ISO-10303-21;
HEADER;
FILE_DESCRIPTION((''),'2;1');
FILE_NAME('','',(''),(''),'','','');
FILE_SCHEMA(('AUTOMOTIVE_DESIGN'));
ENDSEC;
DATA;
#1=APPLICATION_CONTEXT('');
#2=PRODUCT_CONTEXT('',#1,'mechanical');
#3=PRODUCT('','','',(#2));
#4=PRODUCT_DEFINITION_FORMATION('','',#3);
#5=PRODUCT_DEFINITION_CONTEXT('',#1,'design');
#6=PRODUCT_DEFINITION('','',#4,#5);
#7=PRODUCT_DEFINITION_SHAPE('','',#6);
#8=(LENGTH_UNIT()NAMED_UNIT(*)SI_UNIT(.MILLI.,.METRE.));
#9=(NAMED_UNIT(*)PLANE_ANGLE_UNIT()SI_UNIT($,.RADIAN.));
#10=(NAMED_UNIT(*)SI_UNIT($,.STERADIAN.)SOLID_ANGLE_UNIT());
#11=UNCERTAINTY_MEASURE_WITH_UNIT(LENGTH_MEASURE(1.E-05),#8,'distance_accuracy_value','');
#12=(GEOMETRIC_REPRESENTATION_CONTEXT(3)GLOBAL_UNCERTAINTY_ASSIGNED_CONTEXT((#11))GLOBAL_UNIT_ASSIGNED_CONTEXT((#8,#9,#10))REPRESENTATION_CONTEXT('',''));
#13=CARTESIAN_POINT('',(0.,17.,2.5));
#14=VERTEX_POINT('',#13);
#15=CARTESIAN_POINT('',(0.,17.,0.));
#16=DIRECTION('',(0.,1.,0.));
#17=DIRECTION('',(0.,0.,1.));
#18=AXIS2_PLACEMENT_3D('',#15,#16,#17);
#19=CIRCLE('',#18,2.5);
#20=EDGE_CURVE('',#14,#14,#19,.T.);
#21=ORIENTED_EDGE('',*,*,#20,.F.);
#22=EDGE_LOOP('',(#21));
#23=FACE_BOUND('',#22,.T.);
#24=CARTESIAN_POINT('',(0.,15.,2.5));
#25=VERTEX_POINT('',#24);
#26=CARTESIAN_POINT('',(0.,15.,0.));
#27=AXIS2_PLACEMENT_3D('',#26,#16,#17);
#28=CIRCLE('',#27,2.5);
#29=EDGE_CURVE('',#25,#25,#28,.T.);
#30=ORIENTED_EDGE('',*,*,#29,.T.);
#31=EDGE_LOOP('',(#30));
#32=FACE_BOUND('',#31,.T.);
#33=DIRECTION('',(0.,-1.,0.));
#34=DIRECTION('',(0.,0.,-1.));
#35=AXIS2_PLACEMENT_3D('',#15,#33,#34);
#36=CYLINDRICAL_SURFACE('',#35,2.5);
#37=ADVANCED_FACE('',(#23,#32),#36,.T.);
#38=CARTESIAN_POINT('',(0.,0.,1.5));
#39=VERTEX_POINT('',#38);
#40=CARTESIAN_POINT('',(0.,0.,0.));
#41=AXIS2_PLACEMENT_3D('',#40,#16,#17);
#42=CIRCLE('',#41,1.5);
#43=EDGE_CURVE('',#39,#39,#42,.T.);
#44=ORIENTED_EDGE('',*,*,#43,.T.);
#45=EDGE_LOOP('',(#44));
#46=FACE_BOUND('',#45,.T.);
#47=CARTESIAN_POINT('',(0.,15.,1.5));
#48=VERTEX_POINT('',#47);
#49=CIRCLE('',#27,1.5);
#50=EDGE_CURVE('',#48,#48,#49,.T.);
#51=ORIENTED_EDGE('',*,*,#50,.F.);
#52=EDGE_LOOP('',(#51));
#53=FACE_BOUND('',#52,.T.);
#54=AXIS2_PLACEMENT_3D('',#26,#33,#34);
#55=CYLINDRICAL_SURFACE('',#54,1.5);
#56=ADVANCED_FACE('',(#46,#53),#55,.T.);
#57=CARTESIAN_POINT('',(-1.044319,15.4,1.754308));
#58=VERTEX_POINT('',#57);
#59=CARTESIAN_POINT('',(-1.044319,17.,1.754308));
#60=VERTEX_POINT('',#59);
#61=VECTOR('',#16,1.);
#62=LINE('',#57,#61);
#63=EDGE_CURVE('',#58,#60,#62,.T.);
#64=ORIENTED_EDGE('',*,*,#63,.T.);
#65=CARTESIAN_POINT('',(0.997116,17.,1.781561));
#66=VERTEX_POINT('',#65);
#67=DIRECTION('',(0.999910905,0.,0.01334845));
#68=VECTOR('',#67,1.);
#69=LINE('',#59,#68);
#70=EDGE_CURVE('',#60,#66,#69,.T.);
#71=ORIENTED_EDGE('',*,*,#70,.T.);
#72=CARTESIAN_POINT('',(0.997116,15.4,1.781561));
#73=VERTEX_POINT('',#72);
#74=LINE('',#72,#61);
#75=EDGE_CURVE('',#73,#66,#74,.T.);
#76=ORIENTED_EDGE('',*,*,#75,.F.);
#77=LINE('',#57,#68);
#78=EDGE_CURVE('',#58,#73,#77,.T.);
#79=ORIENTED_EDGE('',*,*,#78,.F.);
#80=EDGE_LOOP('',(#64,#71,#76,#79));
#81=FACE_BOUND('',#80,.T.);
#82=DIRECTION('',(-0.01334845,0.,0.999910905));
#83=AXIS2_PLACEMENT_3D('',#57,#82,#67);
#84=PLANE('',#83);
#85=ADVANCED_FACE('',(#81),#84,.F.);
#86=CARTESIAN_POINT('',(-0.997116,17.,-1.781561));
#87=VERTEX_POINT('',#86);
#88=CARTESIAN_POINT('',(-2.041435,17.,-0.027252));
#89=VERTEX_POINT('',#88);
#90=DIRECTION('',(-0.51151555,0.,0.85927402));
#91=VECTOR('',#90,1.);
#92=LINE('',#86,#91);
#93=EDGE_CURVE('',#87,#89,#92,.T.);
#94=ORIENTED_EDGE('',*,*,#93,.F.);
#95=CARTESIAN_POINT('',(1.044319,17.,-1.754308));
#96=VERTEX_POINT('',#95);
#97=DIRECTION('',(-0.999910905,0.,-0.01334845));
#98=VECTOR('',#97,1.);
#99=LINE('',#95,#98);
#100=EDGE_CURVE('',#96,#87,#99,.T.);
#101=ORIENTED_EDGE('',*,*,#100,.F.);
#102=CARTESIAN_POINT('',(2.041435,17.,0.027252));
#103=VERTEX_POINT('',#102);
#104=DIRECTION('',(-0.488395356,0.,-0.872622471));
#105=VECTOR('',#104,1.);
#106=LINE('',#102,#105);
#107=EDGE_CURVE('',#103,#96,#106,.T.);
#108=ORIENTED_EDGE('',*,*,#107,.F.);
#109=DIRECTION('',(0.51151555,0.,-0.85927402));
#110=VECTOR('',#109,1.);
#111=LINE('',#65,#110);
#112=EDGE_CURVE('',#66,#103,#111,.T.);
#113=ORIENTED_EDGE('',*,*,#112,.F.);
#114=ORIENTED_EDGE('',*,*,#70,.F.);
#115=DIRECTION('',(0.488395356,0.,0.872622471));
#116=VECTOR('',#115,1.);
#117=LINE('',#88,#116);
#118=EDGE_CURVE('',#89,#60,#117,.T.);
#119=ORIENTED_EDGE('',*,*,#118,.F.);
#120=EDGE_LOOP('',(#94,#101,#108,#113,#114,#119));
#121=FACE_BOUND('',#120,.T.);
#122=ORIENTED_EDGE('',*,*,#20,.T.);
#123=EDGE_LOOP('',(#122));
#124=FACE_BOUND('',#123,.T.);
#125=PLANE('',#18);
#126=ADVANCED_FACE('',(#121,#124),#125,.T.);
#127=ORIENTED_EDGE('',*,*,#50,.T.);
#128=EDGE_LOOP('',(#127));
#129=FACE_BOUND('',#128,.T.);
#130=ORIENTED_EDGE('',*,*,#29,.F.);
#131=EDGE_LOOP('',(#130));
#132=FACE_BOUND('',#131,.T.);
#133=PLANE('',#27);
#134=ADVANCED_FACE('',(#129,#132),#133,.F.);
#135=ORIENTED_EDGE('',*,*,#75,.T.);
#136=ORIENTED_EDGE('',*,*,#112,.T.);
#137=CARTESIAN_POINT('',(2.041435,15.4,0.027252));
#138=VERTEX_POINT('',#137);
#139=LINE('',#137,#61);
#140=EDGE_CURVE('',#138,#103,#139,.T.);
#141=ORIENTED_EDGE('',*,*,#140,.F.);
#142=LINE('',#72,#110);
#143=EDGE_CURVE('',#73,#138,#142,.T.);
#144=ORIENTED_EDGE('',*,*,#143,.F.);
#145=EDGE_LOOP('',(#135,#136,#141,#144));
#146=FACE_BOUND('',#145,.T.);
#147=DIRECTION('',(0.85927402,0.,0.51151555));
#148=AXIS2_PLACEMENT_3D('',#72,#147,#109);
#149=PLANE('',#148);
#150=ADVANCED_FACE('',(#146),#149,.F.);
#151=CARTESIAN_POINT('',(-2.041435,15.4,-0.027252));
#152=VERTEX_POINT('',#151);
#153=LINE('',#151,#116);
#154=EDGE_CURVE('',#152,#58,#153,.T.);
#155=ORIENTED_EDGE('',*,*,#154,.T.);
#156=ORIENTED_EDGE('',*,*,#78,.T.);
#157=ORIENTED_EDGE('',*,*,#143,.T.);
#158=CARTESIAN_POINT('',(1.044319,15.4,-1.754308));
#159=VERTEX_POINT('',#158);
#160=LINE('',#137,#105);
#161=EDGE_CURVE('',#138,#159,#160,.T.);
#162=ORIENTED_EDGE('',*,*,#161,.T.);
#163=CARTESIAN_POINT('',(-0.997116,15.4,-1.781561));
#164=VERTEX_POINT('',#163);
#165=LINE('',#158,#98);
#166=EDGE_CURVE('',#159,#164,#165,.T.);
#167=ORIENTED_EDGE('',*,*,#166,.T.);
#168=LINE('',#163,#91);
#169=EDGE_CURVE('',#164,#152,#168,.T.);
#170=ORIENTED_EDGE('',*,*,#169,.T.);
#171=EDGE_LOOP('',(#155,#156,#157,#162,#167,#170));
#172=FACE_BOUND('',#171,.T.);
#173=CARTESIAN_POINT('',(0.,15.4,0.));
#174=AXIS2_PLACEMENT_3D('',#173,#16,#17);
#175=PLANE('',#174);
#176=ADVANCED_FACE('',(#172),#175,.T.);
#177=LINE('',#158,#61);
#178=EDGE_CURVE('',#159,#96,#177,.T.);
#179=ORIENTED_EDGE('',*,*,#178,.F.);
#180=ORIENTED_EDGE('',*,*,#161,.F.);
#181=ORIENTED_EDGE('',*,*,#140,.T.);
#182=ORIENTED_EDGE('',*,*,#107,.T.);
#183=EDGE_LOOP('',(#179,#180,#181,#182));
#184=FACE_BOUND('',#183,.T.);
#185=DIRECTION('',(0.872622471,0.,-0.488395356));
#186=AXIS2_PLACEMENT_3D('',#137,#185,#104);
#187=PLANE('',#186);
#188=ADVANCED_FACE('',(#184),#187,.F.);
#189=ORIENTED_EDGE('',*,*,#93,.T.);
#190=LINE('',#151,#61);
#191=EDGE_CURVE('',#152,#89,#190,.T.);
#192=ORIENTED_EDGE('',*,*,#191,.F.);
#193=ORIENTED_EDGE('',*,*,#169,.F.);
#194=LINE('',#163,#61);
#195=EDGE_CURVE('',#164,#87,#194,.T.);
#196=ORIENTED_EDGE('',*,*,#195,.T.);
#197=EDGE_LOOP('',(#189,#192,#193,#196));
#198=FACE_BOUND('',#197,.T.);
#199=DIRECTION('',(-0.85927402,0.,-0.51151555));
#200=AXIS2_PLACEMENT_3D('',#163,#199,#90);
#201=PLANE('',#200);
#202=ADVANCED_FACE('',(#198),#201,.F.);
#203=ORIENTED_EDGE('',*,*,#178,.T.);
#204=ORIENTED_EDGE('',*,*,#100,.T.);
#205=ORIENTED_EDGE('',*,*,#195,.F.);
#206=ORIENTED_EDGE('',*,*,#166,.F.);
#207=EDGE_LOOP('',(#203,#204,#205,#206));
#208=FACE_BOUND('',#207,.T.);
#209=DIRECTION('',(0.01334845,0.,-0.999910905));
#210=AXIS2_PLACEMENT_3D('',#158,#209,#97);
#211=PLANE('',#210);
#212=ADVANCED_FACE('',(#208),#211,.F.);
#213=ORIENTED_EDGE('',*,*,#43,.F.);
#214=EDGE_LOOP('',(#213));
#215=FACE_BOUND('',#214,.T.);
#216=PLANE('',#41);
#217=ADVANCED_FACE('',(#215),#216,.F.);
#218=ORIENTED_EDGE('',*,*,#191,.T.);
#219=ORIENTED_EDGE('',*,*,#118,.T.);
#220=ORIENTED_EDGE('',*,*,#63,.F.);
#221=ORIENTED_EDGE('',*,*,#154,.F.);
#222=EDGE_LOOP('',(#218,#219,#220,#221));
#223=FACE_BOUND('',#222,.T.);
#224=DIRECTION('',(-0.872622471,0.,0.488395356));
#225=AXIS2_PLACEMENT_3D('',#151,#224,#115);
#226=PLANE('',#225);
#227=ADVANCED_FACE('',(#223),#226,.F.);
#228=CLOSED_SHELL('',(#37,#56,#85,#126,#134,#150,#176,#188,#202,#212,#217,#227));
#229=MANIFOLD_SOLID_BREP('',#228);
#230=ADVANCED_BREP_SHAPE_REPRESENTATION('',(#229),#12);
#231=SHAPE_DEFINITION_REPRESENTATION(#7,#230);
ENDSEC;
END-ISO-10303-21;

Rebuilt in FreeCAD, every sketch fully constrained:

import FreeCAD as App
import Part
import Sketcher

V = App.Vector
Q = App.Units.Quantity


def add_polygon(sketch, points):
    """Adds a closed chain of lines whose ends are joined by coincident constraints."""
    first, n = sketch.GeometryCount, len(points)
    for a, b in zip(points, points[1:] + points[:1]):
        sketch.addGeometry(Part.LineSegment(App.Vector(*a, 0), App.Vector(*b, 0)), False)
    for i in range(n):
        sketch.addConstraint(Sketcher.Constraint("Coincident", first + i, 2, first + (i + 1) % n, 1))

doc = App.newDocument("Part")
params = doc.addObject("Spreadsheet::Sheet", "Params")
for row, (alias, value) in enumerate([
    ("sketch1_diameter", "3 mm"),
    ("pad1_length", "15 mm"),
    ("sketch2_diameter", "5 mm"),
    ("pad2_length", "2 mm"),
    ("pocket1_length", "1.6 mm"),
], start=1):
    params.set(f"A{row}", alias)
    params.set(f"B{row}", "=" + value)
    params.setAlias(f"B{row}", alias)

body = doc.addObject("PartDesign::Body", "Body")

sketch1 = doc.addObject("Sketcher::SketchObject", "Sketch")
body.addObject(sketch1)
sketch1.AttachmentSupport = (doc.XZ_Plane, [""])
sketch1.MapMode = "FlatFace"
sketch1.addGeometry(Part.Circle(V(0, 0, 0), V(0, 0, 1), 1.5), False)
sketch1.addConstraint([
    Sketcher.Constraint("Coincident", 0, 3, -1, 1),
    Sketcher.Constraint("Diameter", 0, Q("3 mm")),
])
sketch1.setExpression("Constraints[1]", "Params.sketch1_diameter")
pad1 = doc.addObject("PartDesign::Pad", "Pad")
body.addObject(pad1)
pad1.Profile = sketch1
pad1.setExpression("Length", "Params.pad1_length")
pad1.Reversed = True

sketch2 = doc.addObject("Sketcher::SketchObject", "Sketch001")
body.addObject(sketch2)
sketch2.AttachmentSupport = (doc.XZ_Plane, [""])
sketch2.MapMode = "FlatFace"
sketch2.AttachmentOffset = App.Placement(V(0, 0, -15), App.Rotation())
sketch2.addGeometry(Part.Circle(V(0, 0, 0), V(0, 0, 1), 2.5), False)
sketch2.addConstraint([
    Sketcher.Constraint("Coincident", 0, 3, -1, 1),
    Sketcher.Constraint("Diameter", 0, Q("5 mm")),
])
sketch2.setExpression("Constraints[1]", "Params.sketch2_diameter")
pad2 = doc.addObject("PartDesign::Pad", "Pad001")
body.addObject(pad2)
pad2.Profile = sketch2
pad2.setExpression("Length", "Params.pad2_length")
pad2.Reversed = True

sketch3 = doc.addObject("Sketcher::SketchObject", "Sketch002")
body.addObject(sketch3)
sketch3.AttachmentSupport = (doc.XZ_Plane, [""])
sketch3.MapMode = "FlatFace"
sketch3.AttachmentOffset = App.Placement(V(0, 0, -17), App.Rotation())
add_polygon(sketch3, [(1, 1.8), (2, 0), (1, -1.8), (-1, -1.8), (-2, 0), (-1, 1.8)])
sketch3.addConstraint([
    Sketcher.Constraint("Symmetric", 0, 2, 3, 2, -1, 1),
    Sketcher.Constraint("Symmetric", 1, 2, 4, 2, -1, 1),
    Sketcher.Constraint("Symmetric", 2, 2, 5, 2, -1, 1),
    Sketcher.Constraint("Equal", 0, 1),
    Sketcher.Constraint("Equal", 1, 2),
    Sketcher.Constraint("DistanceX", -1, 1, 1, 2, Q("1.044319 mm")),
    Sketcher.Constraint("DistanceY", 1, 2, -1, 1, Q("1.754308 mm")),
    Sketcher.Constraint("DistanceY", 2, 2, -1, 1, Q("1.781561 mm")),
    Sketcher.Constraint("DistanceY", 1, 2, 0, 2, Q("1.781561 mm")),
])
pocket1 = doc.addObject("PartDesign::Pocket", "Pocket")
body.addObject(pocket1)
pocket1.Profile = sketch3
pocket1.setExpression("Length", "Params.pocket1_length")
pocket1.Reversed = True

doc.recompute()
